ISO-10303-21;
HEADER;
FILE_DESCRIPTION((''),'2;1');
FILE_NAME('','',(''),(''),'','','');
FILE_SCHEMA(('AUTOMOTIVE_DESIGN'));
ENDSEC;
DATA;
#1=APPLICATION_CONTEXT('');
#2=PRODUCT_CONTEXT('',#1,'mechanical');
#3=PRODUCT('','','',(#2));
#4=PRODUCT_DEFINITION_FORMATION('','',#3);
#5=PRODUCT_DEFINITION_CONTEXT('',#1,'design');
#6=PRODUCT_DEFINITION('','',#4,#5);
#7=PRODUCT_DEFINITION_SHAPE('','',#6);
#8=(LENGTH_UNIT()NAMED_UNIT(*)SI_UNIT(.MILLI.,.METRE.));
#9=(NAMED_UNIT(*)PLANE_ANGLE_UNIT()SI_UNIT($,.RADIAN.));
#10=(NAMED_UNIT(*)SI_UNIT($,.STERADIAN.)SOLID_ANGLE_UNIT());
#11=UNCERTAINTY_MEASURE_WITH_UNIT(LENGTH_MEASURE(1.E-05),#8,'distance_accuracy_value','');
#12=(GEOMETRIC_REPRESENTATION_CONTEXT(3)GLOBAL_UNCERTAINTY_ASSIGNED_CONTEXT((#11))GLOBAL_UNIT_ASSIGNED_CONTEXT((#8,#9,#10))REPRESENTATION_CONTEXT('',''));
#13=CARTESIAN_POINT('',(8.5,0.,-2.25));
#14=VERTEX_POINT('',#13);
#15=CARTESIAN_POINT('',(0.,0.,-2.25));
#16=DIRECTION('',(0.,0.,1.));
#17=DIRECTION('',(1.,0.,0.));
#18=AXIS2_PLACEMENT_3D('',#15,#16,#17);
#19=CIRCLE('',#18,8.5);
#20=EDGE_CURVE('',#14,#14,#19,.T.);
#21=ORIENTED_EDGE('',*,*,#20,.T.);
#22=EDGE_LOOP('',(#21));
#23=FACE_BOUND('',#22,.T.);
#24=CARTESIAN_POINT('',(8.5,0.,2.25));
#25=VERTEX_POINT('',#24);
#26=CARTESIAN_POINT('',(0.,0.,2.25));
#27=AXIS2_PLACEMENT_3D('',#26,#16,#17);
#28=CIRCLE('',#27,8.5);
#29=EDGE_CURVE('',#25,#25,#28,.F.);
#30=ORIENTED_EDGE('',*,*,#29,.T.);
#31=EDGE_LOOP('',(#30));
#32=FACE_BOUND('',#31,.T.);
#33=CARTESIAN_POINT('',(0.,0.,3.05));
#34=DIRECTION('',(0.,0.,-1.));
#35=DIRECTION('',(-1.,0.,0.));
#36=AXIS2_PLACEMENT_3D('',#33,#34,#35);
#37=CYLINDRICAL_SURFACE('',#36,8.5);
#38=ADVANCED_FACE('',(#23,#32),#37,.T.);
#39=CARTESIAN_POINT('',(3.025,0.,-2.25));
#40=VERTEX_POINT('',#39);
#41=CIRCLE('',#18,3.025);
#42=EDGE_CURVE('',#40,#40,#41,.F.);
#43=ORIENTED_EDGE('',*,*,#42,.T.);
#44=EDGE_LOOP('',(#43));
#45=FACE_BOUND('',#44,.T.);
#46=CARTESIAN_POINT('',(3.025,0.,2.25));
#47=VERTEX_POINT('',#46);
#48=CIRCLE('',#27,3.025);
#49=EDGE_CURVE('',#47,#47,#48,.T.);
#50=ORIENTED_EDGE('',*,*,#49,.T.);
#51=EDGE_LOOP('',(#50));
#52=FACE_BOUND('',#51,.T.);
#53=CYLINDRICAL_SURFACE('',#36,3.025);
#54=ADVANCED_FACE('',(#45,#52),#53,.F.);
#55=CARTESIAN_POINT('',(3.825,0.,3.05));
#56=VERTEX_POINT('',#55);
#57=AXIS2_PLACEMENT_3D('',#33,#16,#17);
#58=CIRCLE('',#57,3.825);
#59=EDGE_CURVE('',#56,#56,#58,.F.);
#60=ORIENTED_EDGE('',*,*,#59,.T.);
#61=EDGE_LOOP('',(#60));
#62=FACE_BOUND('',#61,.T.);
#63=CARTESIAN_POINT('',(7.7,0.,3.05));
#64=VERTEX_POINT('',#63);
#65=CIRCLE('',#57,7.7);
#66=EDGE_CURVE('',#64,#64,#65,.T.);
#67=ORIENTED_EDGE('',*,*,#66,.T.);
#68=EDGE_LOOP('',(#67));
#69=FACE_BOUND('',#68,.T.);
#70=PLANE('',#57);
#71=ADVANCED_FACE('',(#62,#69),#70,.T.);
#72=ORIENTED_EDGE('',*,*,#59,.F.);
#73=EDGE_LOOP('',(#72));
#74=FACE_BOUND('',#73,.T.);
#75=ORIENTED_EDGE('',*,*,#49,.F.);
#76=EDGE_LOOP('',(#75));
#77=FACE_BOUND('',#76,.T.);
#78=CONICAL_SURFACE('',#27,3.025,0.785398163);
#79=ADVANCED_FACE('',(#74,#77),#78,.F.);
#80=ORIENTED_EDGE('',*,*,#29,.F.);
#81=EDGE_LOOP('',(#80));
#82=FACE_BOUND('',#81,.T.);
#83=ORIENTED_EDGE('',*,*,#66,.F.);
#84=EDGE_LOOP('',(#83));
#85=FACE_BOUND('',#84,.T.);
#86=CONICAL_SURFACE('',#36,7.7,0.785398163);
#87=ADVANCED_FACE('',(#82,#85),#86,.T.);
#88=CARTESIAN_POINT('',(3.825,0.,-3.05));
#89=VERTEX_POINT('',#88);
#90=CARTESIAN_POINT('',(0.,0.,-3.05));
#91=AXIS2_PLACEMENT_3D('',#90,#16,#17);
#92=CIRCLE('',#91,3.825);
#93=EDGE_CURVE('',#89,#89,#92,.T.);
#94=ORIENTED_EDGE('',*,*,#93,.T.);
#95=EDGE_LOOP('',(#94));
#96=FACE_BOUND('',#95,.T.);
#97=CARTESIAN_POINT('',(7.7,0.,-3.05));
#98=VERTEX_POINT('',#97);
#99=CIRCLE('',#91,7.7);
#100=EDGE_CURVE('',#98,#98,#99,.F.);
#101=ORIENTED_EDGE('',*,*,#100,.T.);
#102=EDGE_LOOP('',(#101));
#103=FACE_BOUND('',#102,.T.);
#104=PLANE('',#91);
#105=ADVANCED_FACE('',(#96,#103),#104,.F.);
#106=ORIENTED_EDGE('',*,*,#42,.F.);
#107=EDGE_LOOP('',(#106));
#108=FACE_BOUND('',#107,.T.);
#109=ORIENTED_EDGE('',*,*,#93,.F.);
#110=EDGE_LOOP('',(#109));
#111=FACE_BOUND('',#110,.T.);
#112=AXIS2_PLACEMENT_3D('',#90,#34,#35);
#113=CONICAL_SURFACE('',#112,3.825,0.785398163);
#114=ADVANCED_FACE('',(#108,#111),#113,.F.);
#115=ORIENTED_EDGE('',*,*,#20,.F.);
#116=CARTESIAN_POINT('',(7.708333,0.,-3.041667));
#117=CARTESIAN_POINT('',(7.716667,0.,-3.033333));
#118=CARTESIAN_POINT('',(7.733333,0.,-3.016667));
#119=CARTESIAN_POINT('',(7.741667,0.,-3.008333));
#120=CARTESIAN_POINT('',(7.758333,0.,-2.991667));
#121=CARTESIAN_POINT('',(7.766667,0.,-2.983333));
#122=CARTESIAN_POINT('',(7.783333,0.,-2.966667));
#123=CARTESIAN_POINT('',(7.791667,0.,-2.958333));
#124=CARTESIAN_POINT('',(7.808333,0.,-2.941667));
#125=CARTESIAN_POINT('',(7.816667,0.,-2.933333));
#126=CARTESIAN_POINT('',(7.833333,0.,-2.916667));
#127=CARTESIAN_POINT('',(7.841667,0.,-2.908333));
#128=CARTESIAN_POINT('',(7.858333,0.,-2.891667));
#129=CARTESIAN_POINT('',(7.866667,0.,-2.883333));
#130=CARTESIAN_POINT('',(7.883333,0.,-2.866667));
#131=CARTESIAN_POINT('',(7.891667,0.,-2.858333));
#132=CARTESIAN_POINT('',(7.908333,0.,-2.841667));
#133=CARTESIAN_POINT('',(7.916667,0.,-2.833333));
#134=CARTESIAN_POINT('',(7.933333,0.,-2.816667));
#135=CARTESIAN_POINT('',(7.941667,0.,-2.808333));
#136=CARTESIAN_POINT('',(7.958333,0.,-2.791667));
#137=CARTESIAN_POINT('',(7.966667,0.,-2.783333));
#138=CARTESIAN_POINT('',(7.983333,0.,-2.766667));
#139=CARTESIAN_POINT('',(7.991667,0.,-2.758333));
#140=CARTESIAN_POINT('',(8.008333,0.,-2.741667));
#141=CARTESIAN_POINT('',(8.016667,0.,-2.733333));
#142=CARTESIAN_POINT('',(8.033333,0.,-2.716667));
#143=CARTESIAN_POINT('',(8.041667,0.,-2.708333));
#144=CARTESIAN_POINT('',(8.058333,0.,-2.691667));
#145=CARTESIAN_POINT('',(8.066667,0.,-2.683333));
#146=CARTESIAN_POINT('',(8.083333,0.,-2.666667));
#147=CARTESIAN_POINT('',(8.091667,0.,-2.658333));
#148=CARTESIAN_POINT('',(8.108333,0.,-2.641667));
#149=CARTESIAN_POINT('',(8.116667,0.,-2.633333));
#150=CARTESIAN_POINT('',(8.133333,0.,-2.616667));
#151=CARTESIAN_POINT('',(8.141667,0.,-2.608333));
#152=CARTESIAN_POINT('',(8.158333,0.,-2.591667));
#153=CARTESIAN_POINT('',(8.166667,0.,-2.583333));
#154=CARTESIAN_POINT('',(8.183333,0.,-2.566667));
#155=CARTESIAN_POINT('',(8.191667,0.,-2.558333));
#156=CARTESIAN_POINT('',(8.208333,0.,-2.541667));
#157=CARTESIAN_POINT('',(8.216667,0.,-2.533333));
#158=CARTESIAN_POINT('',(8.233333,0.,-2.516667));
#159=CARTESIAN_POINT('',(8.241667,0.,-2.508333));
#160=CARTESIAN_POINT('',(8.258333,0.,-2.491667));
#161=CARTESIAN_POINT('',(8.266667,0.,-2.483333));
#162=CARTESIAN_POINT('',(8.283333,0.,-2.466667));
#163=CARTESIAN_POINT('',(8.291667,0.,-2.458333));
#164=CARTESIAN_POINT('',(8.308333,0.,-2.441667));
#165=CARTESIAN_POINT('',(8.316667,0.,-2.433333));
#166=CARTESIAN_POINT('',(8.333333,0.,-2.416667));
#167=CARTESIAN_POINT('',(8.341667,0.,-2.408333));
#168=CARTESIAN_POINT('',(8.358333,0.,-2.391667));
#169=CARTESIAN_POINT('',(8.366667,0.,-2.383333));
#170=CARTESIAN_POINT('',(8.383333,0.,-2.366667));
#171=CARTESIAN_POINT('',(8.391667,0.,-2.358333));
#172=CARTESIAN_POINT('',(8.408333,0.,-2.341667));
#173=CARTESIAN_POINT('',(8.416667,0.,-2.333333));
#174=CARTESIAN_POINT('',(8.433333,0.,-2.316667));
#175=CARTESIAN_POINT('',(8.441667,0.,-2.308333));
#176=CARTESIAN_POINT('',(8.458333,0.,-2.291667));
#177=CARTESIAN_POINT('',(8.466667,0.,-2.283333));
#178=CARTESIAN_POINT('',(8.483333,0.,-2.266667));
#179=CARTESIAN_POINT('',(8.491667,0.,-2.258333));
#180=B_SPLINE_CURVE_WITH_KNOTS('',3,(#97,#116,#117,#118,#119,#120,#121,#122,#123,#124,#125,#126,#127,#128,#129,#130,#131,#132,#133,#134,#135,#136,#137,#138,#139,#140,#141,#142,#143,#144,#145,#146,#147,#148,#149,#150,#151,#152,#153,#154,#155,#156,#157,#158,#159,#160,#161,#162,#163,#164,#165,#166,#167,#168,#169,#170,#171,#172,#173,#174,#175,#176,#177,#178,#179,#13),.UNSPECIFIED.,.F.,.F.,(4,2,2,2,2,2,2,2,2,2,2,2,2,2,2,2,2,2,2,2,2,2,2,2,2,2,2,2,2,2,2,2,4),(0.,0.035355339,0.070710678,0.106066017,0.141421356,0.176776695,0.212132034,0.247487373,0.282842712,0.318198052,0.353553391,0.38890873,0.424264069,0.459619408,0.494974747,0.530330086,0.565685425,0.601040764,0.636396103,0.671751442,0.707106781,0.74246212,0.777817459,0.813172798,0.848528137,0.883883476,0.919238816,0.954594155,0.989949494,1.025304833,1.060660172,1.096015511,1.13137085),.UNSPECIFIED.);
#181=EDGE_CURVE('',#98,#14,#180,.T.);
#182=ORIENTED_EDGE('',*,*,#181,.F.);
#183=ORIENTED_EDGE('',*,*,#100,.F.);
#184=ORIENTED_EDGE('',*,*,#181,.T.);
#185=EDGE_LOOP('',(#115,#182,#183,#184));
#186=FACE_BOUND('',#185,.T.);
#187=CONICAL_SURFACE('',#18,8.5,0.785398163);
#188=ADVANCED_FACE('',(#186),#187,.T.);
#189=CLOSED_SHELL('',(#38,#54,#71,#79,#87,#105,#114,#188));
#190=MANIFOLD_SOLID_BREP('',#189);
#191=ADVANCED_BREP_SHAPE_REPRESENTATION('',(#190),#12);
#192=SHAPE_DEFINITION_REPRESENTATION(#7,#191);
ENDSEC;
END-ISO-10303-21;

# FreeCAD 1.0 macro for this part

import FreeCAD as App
import Part
import Sketcher
from FreeCAD import Vector
Q = App.Units.Quantity


def edges_at(feature, points):
    """Names of the edges that pass closest to the given points."""
    edges = feature.Shape.Edges
    near = lambda p: min(range(len(edges)), key=lambda i: edges[i].distToShape(Part.Vertex(*p))[0])
    return sorted({f"Edge{near(p) + 1}" for p in points})

doc = App.newDocument("Part")
body = doc.addObject("PartDesign::Body", "Body")

sketch1 = doc.addObject("Sketcher::SketchObject", "Sketch")
body.addObject(sketch1)
sketch1.AttachmentSupport = (doc.XY_Plane, [""])
sketch1.MapMode = "FlatFace"
sketch1.addGeometry([
    Part.Circle(Vector(0, 0, 0), Vector(0, 0, 1), 8.5),
    Part.Circle(Vector(0, 0, 0), Vector(0, 0, 1), 3.025),
], False)
sketch1.addConstraint([
    Sketcher.Constraint("Coincident", 0, 3, -1, 1),
    Sketcher.Constraint("Coincident", 1, 3, -1, 1),
    Sketcher.Constraint("Diameter", 0, Q("17 mm")),
    Sketcher.Constraint("Diameter", 1, Q("6.05 mm")),
])
pad1 = doc.addObject("PartDesign::Pad", "Pad")
body.addObject(pad1)
pad1.Profile = sketch1
pad1.Length = 6.1
pad1.Midplane = True
doc.recompute()

chamfer = doc.addObject("PartDesign::Chamfer", "Chamfer")
body.addObject(chamfer)
chamfer.Base = (pad1, edges_at(pad1, [
    (-8.5, 0, -3.05),
    (-8.5, 0, 3.05),
    (-3.025, 0, -3.05),
    (-3.025, 0, 3.05),
]))
chamfer.Size = 0.8

doc.recompute()
